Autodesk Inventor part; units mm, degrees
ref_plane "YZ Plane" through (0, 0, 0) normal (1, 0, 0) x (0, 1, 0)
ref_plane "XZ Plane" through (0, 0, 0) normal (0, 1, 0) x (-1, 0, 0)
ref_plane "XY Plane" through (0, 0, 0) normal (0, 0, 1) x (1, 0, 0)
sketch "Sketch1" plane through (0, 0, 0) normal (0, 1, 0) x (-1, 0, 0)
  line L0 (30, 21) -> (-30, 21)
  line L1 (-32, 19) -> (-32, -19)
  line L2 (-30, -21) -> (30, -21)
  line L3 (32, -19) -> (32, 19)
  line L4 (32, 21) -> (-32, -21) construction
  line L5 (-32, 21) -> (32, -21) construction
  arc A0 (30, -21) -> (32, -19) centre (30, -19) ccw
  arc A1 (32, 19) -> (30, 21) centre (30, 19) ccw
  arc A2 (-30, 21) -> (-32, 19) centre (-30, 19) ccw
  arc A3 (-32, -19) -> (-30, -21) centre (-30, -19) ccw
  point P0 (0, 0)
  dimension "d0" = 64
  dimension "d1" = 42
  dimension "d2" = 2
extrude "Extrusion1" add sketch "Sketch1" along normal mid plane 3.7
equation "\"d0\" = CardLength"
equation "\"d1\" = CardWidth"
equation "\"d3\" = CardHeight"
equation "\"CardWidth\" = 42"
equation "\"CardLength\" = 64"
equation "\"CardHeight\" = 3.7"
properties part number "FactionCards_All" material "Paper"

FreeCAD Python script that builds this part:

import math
import FreeCAD as App
import Part
import Sketcher

V = App.Vector
Q = App.Units.Quantity

doc = App.newDocument("Part")
body = doc.addObject("PartDesign::Body", "Body")

# Sketch on XZ plane
sketch1 = body.newObject("Sketcher::SketchObject", "Sketch")
sketch1.AttachmentSupport = (doc.getObject("XZ_Plane"), [""])
sketch1.MapMode = "FlatFace"
sketch1.addGeometry([
    Part.ArcOfCircle(Part.Circle(V(-30, 19, 0), V(0, 0, 1), 2), math.radians(90), math.radians(180)),  # 0
    Part.LineSegment(V(-30, 21, 0), V(30, 21, 0)),  # 1
    Part.ArcOfCircle(Part.Circle(V(30, 19, 0), V(0, 0, 1), 2), math.radians(0), math.radians(90)),  # 2
    Part.LineSegment(V(32, 19, 0), V(32, -19, 0)),  # 3
    Part.ArcOfCircle(Part.Circle(V(30, -19, 0), V(0, 0, 1), 2), math.radians(-90), math.radians(0)),  # 4
    Part.LineSegment(V(30, -21, 0), V(-30, -21, 0)),  # 5
    Part.ArcOfCircle(Part.Circle(V(-30, -19, 0), V(0, 0, 1), 2), math.radians(180), math.radians(270)),  # 6
    Part.LineSegment(V(-32, -19, 0), V(-32, 19, 0)),  # 7
], False)
sketch1.addConstraint([
    Sketcher.Constraint("Tangent", 0, 1, 1, 1),
    Sketcher.Constraint("Tangent", 1, 2, 2, 2),
    Sketcher.Constraint("Tangent", 2, 1, 3, 1),
    Sketcher.Constraint("Tangent", 3, 2, 4, 2),
    Sketcher.Constraint("Tangent", 4, 1, 5, 1),
    Sketcher.Constraint("Tangent", 5, 2, 6, 2),
    Sketcher.Constraint("Tangent", 6, 1, 7, 1),
    Sketcher.Constraint("Tangent", 7, 2, 0, 2),
    Sketcher.Constraint("Horizontal", 1),
    Sketcher.Constraint("Vertical", 3),
    Sketcher.Constraint("Horizontal", 5),
    Sketcher.Constraint("Vertical", 7),
    Sketcher.Constraint("Equal", 0, 2),
    Sketcher.Constraint("Equal", 2, 4),
    Sketcher.Constraint("Equal", 4, 6),
    Sketcher.Constraint("Symmetric", 0, 3, 4, 3, -1, 1),
    Sketcher.Constraint("Radius", 0, Q("2 mm")),
    Sketcher.Constraint("DistanceY", 4, 1, 1, 2, Q("42 mm")),
    Sketcher.Constraint("DistanceX", 1, 1, 1, 2, Q("60 mm")),
])
pad1 = body.newObject("PartDesign::Pad", "Pad")
pad1.Profile = sketch1
pad1.Length = 3.7
pad1.Midplane = True

doc.recompute()
